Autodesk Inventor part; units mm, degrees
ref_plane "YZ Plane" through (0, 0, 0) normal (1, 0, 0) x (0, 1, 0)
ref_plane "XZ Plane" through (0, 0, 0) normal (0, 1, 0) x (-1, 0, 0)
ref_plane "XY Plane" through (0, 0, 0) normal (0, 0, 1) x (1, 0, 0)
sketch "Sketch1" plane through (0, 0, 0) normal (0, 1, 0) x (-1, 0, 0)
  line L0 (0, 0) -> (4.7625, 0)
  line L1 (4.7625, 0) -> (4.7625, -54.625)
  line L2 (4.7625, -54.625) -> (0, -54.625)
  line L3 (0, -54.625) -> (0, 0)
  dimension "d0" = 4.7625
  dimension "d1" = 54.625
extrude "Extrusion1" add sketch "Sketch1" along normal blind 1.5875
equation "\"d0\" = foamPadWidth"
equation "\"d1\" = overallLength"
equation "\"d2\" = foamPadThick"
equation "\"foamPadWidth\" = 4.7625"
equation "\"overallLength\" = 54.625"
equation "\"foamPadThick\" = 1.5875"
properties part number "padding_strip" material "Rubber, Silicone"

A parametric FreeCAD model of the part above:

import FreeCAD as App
import Part
import Sketcher

V = App.Vector
Q = App.Units.Quantity

doc = App.newDocument("Part")
params = doc.addObject("Spreadsheet::Sheet", "Params")
for row, (alias, value) in enumerate([
    ("sketch1_width", "0.1875 in"),
    ("pad1_length", "0.0625 in"),
], start=1):
    params.set(f"A{row}", alias)
    params.set(f"B{row}", "=" + value)
    params.setAlias(f"B{row}", alias)

body = doc.addObject("PartDesign::Body", "Body")

# Sketch on XZ plane
sketch1 = body.newObject("Sketcher::SketchObject", "Sketch")
sketch1.AttachmentSupport = (doc.getObject("XZ_Plane"), [""])
sketch1.MapMode = "FlatFace"
sketch1.addGeometry(Part.LineSegment(V(-4.8, 0, 0), V(0, 0, 0)), False)
sketch1.addGeometry(Part.LineSegment(V(0, 0, 0), V(0, -54.6, 0)), False)
sketch1.addGeometry(Part.LineSegment(V(0, -54.6, 0), V(-4.8, -54.6, 0)), False)
sketch1.addGeometry(Part.LineSegment(V(-4.8, -54.6, 0), V(-4.8, 0, 0)), False)
sketch1.addConstraint(Sketcher.Constraint("Coincident", 0, 2, 1, 1))
sketch1.addConstraint(Sketcher.Constraint("Coincident", 1, 2, 2, 1))
sketch1.addConstraint(Sketcher.Constraint("Coincident", 2, 2, 3, 1))
sketch1.addConstraint(Sketcher.Constraint("Coincident", 3, 2, 0, 1))
sketch1.addConstraint(Sketcher.Constraint("Horizontal", 0))
sketch1.addConstraint(Sketcher.Constraint("Vertical", 1))
sketch1.addConstraint(Sketcher.Constraint("Horizontal", 2))
sketch1.addConstraint(Sketcher.Constraint("Vertical", 3))
sketch1.addConstraint(Sketcher.Constraint("Coincident", 0, 2, -1, 1))
sketch1.addConstraint(Sketcher.Constraint("DistanceX", 0, 1, 0, 2, Q("0.1875 in")))
sketch1.addConstraint(Sketcher.Constraint("DistanceY", 1, 2, 1, 1, Q("2.1506 in")))
sketch1.setExpression("Constraints[9]", "Params.sketch1_width")
pad1 = body.newObject("PartDesign::Pad", "Pad")
pad1.Profile = sketch1
pad1.setExpression("Length", "Params.pad1_length")
pad1.Reversed = True

doc.recompute()
